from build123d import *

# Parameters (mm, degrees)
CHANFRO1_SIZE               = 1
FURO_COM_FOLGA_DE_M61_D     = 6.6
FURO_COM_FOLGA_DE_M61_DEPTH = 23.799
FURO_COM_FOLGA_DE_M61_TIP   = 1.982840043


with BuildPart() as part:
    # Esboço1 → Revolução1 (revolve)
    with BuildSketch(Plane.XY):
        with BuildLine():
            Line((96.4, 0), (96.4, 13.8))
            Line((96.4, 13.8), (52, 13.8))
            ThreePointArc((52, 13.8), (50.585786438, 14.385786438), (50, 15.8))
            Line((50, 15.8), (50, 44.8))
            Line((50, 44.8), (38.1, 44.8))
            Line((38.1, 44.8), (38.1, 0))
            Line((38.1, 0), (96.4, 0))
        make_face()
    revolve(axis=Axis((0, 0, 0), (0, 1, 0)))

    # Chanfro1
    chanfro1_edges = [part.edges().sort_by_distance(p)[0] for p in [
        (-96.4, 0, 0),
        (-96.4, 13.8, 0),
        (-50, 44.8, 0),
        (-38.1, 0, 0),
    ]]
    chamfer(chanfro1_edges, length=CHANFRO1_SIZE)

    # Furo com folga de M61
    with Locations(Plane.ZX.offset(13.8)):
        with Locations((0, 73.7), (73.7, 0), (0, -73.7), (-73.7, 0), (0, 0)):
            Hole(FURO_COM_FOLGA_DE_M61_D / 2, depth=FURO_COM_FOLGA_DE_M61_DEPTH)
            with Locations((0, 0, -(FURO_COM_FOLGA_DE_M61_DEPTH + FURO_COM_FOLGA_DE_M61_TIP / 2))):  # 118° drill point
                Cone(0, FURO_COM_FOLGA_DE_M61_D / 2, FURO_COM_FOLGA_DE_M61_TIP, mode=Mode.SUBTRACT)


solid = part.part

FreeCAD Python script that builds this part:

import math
import FreeCAD as App
import Part
import Sketcher
from FreeCAD import Vector


def edges_at(feature, points):
    """Names of the edges that pass closest to the given points."""
    edges = feature.Shape.Edges
    near = lambda p: min(range(len(edges)), key=lambda i: edges[i].distToShape(Part.Vertex(*p))[0])
    return sorted({f"Edge{near(p) + 1}" for p in points})

doc = App.newDocument("Part")
body = doc.addObject("PartDesign::Body", "Body")

sketch1 = doc.addObject("Sketcher::SketchObject", "Sketch")
body.addObject(sketch1)
sketch1.AttachmentSupport = (doc.XY_Plane, [""])
sketch1.MapMode = "FlatFace"
sketch1.addGeometry(Part.LineSegment(Vector(96.4, 0, 0), Vector(96.4, 13.8, 0)), False)
sketch1.addGeometry(Part.LineSegment(Vector(96.4, 13.8, 0), Vector(52, 13.8, 0)), False)
sketch1.addGeometry(Part.ArcOfCircle(Part.Circle(Vector(52, 15.8, 0), Vector(0, 0, 1), 2), math.radians(-180), math.radians(-90)), False)
sketch1.addGeometry(Part.LineSegment(Vector(50, 15.8, 0), Vector(50, 44.8, 0)), False)
sketch1.addGeometry(Part.LineSegment(Vector(50, 44.8, 0), Vector(38.1, 44.8, 0)), False)
sketch1.addGeometry(Part.LineSegment(Vector(38.1, 44.8, 0), Vector(38.1, 0, 0)), False)
sketch1.addGeometry(Part.LineSegment(Vector(38.1, 0, 0), Vector(96.4, 0, 0)), False)
sketch1.addConstraint(Sketcher.Constraint("Coincident", 0, 2, 1, 1))
sketch1.addConstraint(Sketcher.Constraint("Tangent", 1, 2, 2, 2))
sketch1.addConstraint(Sketcher.Constraint("Tangent", 2, 1, 3, 1))
sketch1.addConstraint(Sketcher.Constraint("Coincident", 3, 2, 4, 1))
sketch1.addConstraint(Sketcher.Constraint("Coincident", 4, 2, 5, 1))
sketch1.addConstraint(Sketcher.Constraint("Coincident", 5, 2, 6, 1))
sketch1.addConstraint(Sketcher.Constraint("Coincident", 6, 2, 0, 1))
sketch1.addConstraint(Sketcher.Constraint("Vertical", 0))
sketch1.addConstraint(Sketcher.Constraint("Horizontal", 1))
sketch1.addConstraint(Sketcher.Constraint("Vertical", 3))
sketch1.addConstraint(Sketcher.Constraint("Horizontal", 4))
sketch1.addConstraint(Sketcher.Constraint("Vertical", 5))
sketch1.addConstraint(Sketcher.Constraint("Horizontal", 6))
sketch1.addConstraint(Sketcher.Constraint("PointOnObject", 5, 2, -1))
sketch1.addConstraint(Sketcher.Constraint("Radius", 2, 2.0))
sketch1.addConstraint(Sketcher.Constraint("DistanceY", 3, 1, 3, 2, 29.0))
sketch1.addConstraint(Sketcher.Constraint("DistanceX", 1, 2, 1, 1, 44.4))
sketch1.addConstraint(Sketcher.Constraint("DistanceX", 4, 2, 4, 1, 11.9))
sketch1.addConstraint(Sketcher.Constraint("DistanceY", 0, 1, 0, 2, 13.8))
sketch1.addConstraint(Sketcher.Constraint("DistanceX", -1, 1, 2, 3, 52.0))
revolution = doc.addObject("PartDesign::Revolution", "Revolution")
body.addObject(revolution)
revolution.Profile = sketch1
revolution.ReferenceAxis = (sketch1, ["V_Axis"])
revolution.Angle = 360
doc.recompute()

chamfer = doc.addObject("PartDesign::Chamfer", "Chamfer")
body.addObject(chamfer)
chamfer.Base = (revolution, edges_at(revolution, [
    (-96.4, 0, 0),
    (-96.4, 13.8, 0),
    (-50, 44.8, 0),
    (-38.1, 0, 0),
]))
chamfer.Size = 1

sketch2 = doc.addObject("Sketcher::SketchObject", "Sketch001")
body.addObject(sketch2)
sketch2.AttachmentSupport = (doc.XZ_Plane, [""])
sketch2.MapMode = "FlatFace"
sketch2.AttachmentOffset = App.Placement(Vector(0, 0, -13.8), App.Rotation())
sketch2.addGeometry(Part.Circle(Vector(73.7, 0, 0), Vector(0, 0, 1), 3.3), False)
sketch2.addGeometry(Part.Circle(Vector(0, 73.7, 0), Vector(0, 0, 1), 3.3), False)
sketch2.addGeometry(Part.Circle(Vector(-73.7, 0, 0), Vector(0, 0, 1), 3.3), False)
sketch2.addGeometry(Part.Circle(Vector(0, -73.7, 0), Vector(0, 0, 1), 3.3), False)
sketch2.addGeometry(Part.Circle(Vector(0, 0, 0), Vector(0, 0, 1), 3.3), False)
sketch2.addConstraint(Sketcher.Constraint("Coincident", 4, 3, -1, 1))
sketch2.addConstraint(Sketcher.Constraint("Equal", 0, 1))
sketch2.addConstraint(Sketcher.Constraint("Equal", 1, 2))
sketch2.addConstraint(Sketcher.Constraint("Equal", 2, 3))
sketch2.addConstraint(Sketcher.Constraint("Equal", 3, 4))
sketch2.addConstraint(Sketcher.Constraint("Symmetric", 0, 3, 2, 3, -1, 1))
sketch2.addConstraint(Sketcher.Constraint("Symmetric", 1, 3, 3, 3, -1, 1))
sketch2.addConstraint(Sketcher.Constraint("PointOnObject", 0, 3, -1))
sketch2.addConstraint(Sketcher.Constraint("PointOnObject", 1, 3, -2))
sketch2.addConstraint(Sketcher.Constraint("Diameter", 0, 6.6))
sketch2.addConstraint(Sketcher.Constraint("DistanceX", -1, 1, 0, 3, 73.7))
sketch2.addConstraint(Sketcher.Constraint("DistanceY", -1, 1, 1, 3, 73.7))
doc.recompute()
hole = doc.addObject("PartDesign::Hole", "Hole")
body.addObject(hole)
hole.Profile = sketch2
hole.ThreadType = "None"
hole.Diameter = 6.6
hole.DepthType = "Dimension"
hole.Depth = 23.799
hole.DrillPoint = "Angled"
hole.DrillPointAngle = 118
hole.Reversed = True

doc.recompute()
